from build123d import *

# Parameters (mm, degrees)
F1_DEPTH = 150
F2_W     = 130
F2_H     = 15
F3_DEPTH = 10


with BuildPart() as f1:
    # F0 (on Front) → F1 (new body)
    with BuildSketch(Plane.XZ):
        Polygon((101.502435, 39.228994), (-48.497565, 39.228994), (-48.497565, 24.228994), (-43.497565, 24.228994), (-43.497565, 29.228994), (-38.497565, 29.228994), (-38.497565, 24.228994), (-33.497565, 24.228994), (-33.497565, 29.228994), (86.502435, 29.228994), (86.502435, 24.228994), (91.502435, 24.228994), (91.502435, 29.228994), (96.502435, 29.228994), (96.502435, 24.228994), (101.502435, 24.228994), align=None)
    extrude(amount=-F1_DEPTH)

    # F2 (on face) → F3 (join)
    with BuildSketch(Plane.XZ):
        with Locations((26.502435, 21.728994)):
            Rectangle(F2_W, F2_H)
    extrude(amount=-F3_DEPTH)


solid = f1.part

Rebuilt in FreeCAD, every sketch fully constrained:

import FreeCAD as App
import Part
import Sketcher

V = App.Vector


def add_polygon(sketch, points):
    """Adds a closed chain of lines whose ends are joined by coincident constraints."""
    first, n = sketch.GeometryCount, len(points)
    for a, b in zip(points, points[1:] + points[:1]):
        sketch.addGeometry(Part.LineSegment(App.Vector(*a, 0), App.Vector(*b, 0)), False)
    for i in range(n):
        sketch.addConstraint(Sketcher.Constraint("Coincident", first + i, 2, first + (i + 1) % n, 1))

doc = App.newDocument("Part")
body = doc.addObject("PartDesign::Body", "Body")

# Sketch on XZ plane
sketch1 = body.newObject("Sketcher::SketchObject", "Sketch")
sketch1.AttachmentSupport = (doc.getObject("XZ_Plane"), [""])
sketch1.MapMode = "FlatFace"
add_polygon(sketch1, [(102, 39), (-48, 39), (-48, 24), (-43, 24), (-43, 29), (-38, 29), (-38, 24), (-33, 24), (-33, 29), (87, 29), (87, 24), (92, 24), (92, 29), (97, 29), (97, 24), (102, 24)])  # lines 0-15
sketch1.addConstraint([
    Sketcher.Constraint("Horizontal", 0),
    Sketcher.Constraint("Vertical", 1),
    Sketcher.Constraint("Horizontal", 2),
    Sketcher.Constraint("Vertical", 3),
    Sketcher.Constraint("Horizontal", 4),
    Sketcher.Constraint("Vertical", 5),
    Sketcher.Constraint("Horizontal", 6),
    Sketcher.Constraint("Vertical", 7),
    Sketcher.Constraint("Horizontal", 8),
    Sketcher.Constraint("Vertical", 9),
    Sketcher.Constraint("Horizontal", 10),
    Sketcher.Constraint("Vertical", 11),
    Sketcher.Constraint("Horizontal", 12),
    Sketcher.Constraint("Vertical", 13),
    Sketcher.Constraint("Horizontal", 14),
    Sketcher.Constraint("Vertical", 15),
    Sketcher.Constraint("Horizontal", 2, 2, 5, 2),
    Sketcher.Constraint("Horizontal", 4, 2, 7, 2),
    Sketcher.Constraint("Horizontal", 6, 2, 9, 2),
    Sketcher.Constraint("Horizontal", 8, 2, 11, 2),
    Sketcher.Constraint("Horizontal", 10, 2, 13, 2),
    Sketcher.Constraint("Equal", 2, 4),
    Sketcher.Constraint("Equal", 4, 6),
    Sketcher.Constraint("Equal", 6, 10),
    Sketcher.Constraint("Equal", 10, 12),
    Sketcher.Constraint("Equal", 12, 14),
    Sketcher.Constraint("Equal", 14, 3),
    Sketcher.Constraint("DistanceX", 0, 2, 0, 1, 150.0),
    Sketcher.Constraint("DistanceX", 2, 1, 2, 2, 5.0),
    Sketcher.Constraint("DistanceY", 1, 2, 1, 1, 15.0),
    Sketcher.Constraint("DistanceX", 0, 2, -1, 1, 48.497565),
    Sketcher.Constraint("DistanceY", -1, 1, 0, 2, 39.228994),
])
pad1 = body.newObject("PartDesign::Pad", "Pad")
pad1.Profile = sketch1
pad1.Length = 150
pad1.Reversed = True

# Sketch on XZ plane
sketch2 = body.newObject("Sketcher::SketchObject", "Sketch001")
sketch2.AttachmentSupport = (doc.getObject("XZ_Plane"), [""])
sketch2.MapMode = "FlatFace"
add_polygon(sketch2, [(-38, 29), (-38, 14), (92, 14), (92, 29)])  # lines 0-3
sketch2.addConstraint([
    Sketcher.Constraint("Vertical", 0),
    Sketcher.Constraint("Horizontal", 1),
    Sketcher.Constraint("Vertical", 2),
    Sketcher.Constraint("Horizontal", 3),
    Sketcher.Constraint("DistanceX", 1, 1, 1, 2, 130.0),
    Sketcher.Constraint("DistanceY", 0, 2, 0, 1, 15.0),
    Sketcher.Constraint("DistanceX", 0, 2, -1, 1, 38.497565),
    Sketcher.Constraint("DistanceY", -1, 1, 0, 2, 14.228994),
])
pad2 = body.newObject("PartDesign::Pad", "Pad001")
pad2.Profile = sketch2
pad2.Length = 10
pad2.Reversed = True

doc.recompute()
